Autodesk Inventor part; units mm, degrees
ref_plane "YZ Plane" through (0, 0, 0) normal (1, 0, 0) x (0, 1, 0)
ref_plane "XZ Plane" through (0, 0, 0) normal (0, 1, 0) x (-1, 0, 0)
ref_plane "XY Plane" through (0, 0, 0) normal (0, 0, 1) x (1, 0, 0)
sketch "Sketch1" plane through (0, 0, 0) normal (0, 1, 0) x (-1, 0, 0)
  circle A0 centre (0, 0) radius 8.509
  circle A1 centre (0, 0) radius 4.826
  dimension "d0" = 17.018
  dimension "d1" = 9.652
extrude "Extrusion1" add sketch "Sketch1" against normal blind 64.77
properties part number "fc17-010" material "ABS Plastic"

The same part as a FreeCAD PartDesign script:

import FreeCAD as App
import Part
import Sketcher

V = App.Vector
Q = App.Units.Quantity

doc = App.newDocument("Part")
body = doc.addObject("PartDesign::Body", "Body")

# Sketch on XZ plane
sketch1 = doc.addObject("Sketcher::SketchObject", "Sketch")
body.addObject(sketch1)
sketch1.AttachmentSupport = (doc.XZ_Plane, [""])
sketch1.MapMode = "FlatFace"
sketch1.addGeometry(Part.Circle(V(0, 0, 0), V(0, 0, 1), 8.5), False)
sketch1.addGeometry(Part.Circle(V(0, 0, 0), V(0, 0, 1), 4.8), False)
sketch1.addConstraint(Sketcher.Constraint("Coincident", 0, 3, -1, 1))
sketch1.addConstraint(Sketcher.Constraint("Coincident", 1, 3, -1, 1))
sketch1.addConstraint(Sketcher.Constraint("Diameter", 0, Q("0.67 in")))
sketch1.addConstraint(Sketcher.Constraint("Diameter", 1, Q("0.38 in")))
pad1 = doc.addObject("PartDesign::Pad", "Pad")
body.addObject(pad1)
pad1.Profile = sketch1
pad1.Length = Q("2.55 in")

doc.recompute()
